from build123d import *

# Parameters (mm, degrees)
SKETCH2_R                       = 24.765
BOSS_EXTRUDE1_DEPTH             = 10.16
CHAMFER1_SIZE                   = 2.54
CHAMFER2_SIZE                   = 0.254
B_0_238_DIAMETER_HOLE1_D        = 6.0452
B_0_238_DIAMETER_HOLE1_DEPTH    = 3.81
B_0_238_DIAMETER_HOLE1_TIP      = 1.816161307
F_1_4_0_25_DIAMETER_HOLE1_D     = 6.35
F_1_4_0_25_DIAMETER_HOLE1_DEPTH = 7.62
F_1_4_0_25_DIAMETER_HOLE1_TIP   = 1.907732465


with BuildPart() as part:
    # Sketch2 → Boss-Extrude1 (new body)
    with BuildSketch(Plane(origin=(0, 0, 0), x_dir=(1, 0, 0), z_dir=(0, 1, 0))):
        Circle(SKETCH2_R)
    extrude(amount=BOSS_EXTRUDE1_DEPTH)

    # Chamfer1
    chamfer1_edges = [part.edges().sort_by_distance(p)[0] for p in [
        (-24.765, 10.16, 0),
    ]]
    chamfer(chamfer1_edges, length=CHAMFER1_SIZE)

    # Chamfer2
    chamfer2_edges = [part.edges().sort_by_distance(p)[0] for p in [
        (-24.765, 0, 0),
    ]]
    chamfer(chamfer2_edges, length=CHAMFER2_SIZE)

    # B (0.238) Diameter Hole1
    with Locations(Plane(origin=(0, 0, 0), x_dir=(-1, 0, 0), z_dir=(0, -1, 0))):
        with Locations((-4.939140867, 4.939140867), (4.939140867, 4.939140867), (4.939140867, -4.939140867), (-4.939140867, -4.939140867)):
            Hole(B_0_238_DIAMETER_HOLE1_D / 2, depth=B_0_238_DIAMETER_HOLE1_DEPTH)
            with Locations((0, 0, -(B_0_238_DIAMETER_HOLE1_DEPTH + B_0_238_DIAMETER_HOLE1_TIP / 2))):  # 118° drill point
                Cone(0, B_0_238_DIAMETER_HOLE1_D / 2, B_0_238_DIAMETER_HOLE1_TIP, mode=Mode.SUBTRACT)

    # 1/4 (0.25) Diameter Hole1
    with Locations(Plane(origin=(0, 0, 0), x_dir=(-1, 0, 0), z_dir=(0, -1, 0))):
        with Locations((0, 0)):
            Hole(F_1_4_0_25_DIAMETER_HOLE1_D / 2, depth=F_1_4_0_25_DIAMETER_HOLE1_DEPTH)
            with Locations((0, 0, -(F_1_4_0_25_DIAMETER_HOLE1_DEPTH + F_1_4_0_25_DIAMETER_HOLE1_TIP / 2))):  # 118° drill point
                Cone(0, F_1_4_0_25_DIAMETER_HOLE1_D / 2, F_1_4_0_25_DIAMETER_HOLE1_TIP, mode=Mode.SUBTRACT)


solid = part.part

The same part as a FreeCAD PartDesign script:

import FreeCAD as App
import Part
import Sketcher
from FreeCAD import Vector
Q = App.Units.Quantity


def edges_at(feature, points):
    """Names of the edges that pass closest to the given points."""
    edges = feature.Shape.Edges
    near = lambda p: min(range(len(edges)), key=lambda i: edges[i].distToShape(Part.Vertex(*p))[0])
    return sorted({f"Edge{near(p) + 1}" for p in points})

doc = App.newDocument("Part")
body = doc.addObject("PartDesign::Body", "Body")

sketch1 = doc.addObject("Sketcher::SketchObject", "Sketch")
body.addObject(sketch1)
sketch1.AttachmentSupport = (doc.XZ_Plane, [""])
sketch1.MapMode = "FlatFace"
sketch1.addGeometry(Part.Circle(Vector(0, 0, 0), Vector(0, 0, 1), 24.765), False)
sketch1.addConstraint(Sketcher.Constraint("Coincident", 0, 3, -1, 1))
sketch1.addConstraint(Sketcher.Constraint("Diameter", 0, Q("1.95 in")))
pad1 = doc.addObject("PartDesign::Pad", "Pad")
body.addObject(pad1)
pad1.Profile = sketch1
pad1.Length = Q("0.4 in")
pad1.Reversed = True
doc.recompute()

chamfer = doc.addObject("PartDesign::Chamfer", "Chamfer")
body.addObject(chamfer)
chamfer.Base = (pad1, edges_at(pad1, [(-24.765, 10.16, 0)]))
chamfer.Size = Q("0.1 in")
doc.recompute()

chamfer2 = doc.addObject("PartDesign::Chamfer", "Chamfer001")
body.addObject(chamfer2)
chamfer2.Base = (chamfer, edges_at(chamfer, [(-24.765, 0, 0)]))
chamfer2.Size = Q("0.01 in")

sketch2 = doc.addObject("Sketcher::SketchObject", "Sketch001")
body.addObject(sketch2)
sketch2.AttachmentSupport = (doc.XZ_Plane, [""])
sketch2.MapMode = "FlatFace"
sketch2.addGeometry(Part.Circle(Vector(4.939141, -4.939141, 0), Vector(0, 0, 1), 3.0226), False)
sketch2.addGeometry(Part.Circle(Vector(-4.939141, -4.939141, 0), Vector(0, 0, 1), 3.0226), False)
sketch2.addGeometry(Part.Circle(Vector(-4.939141, 4.939141, 0), Vector(0, 0, 1), 3.0226), False)
sketch2.addGeometry(Part.Circle(Vector(4.939141, 4.939141, 0), Vector(0, 0, 1), 3.0226), False)
sketch2.addConstraint(Sketcher.Constraint("Equal", 0, 1))
sketch2.addConstraint(Sketcher.Constraint("Equal", 1, 2))
sketch2.addConstraint(Sketcher.Constraint("Equal", 2, 3))
sketch2.addConstraint(Sketcher.Constraint("Symmetric", 0, 3, 2, 3, -1, 1))
sketch2.addConstraint(Sketcher.Constraint("Symmetric", 1, 3, 3, 3, -1, 1))
sketch2.addConstraint(Sketcher.Constraint("Symmetric", 0, 3, 1, 3, -2))
sketch2.addConstraint(Sketcher.Constraint("Diameter", 0, Q("0.238 in")))
sketch2.addConstraint(Sketcher.Constraint("DistanceX", -1, 1, 0, 3, 4.939141))
sketch2.addConstraint(Sketcher.Constraint("DistanceY", 0, 3, -1, 1, 4.939141))
doc.recompute()
hole = doc.addObject("PartDesign::Hole", "Hole")
body.addObject(hole)
hole.Profile = sketch2
hole.ThreadType = "None"
hole.Diameter = Q("0.238 in")
hole.DepthType = "Dimension"
hole.Depth = Q("0.15 in")
hole.DrillPoint = "Angled"
hole.DrillPointAngle = 118

sketch3 = doc.addObject("Sketcher::SketchObject", "Sketch002")
body.addObject(sketch3)
sketch3.AttachmentSupport = (doc.XZ_Plane, [""])
sketch3.MapMode = "FlatFace"
sketch3.addGeometry(Part.Circle(Vector(0, 0, 0), Vector(0, 0, 1), 3.175), False)
sketch3.addConstraint(Sketcher.Constraint("Coincident", 0, 3, -1, 1))
sketch3.addConstraint(Sketcher.Constraint("Diameter", 0, Q("0.25 in")))
doc.recompute()
hole2 = doc.addObject("PartDesign::Hole", "Hole001")
body.addObject(hole2)
hole2.Profile = sketch3
hole2.ThreadType = "None"
hole2.Diameter = Q("0.25 in")
hole2.DepthType = "Dimension"
hole2.Depth = Q("0.3 in")
hole2.DrillPoint = "Angled"
hole2.DrillPointAngle = 118

doc.recompute()
